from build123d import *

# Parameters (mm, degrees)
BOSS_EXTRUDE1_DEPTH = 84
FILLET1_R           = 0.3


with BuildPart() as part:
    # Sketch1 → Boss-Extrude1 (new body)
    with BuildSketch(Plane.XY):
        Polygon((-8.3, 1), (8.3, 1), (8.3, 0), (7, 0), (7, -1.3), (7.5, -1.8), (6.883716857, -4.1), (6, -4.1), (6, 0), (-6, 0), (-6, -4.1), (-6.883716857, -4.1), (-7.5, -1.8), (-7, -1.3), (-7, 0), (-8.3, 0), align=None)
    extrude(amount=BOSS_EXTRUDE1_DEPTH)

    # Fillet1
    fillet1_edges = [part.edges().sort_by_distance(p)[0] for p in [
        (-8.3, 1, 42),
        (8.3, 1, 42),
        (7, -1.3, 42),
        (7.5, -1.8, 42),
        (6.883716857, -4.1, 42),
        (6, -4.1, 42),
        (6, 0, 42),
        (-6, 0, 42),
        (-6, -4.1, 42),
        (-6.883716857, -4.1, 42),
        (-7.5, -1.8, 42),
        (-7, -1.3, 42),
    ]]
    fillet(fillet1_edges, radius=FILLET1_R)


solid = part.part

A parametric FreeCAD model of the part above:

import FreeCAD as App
import Part
import Sketcher

V = App.Vector
Q = App.Units.Quantity


def edges_at(feature, points):
    """Names of the edges that pass closest to the given points."""
    edges = feature.Shape.Edges
    near = lambda p: min(range(len(edges)), key=lambda i: edges[i].distToShape(Part.Vertex(*p))[0])
    return sorted({f"Edge{near(p) + 1}" for p in points})

doc = App.newDocument("Part")
params = doc.addObject("Spreadsheet::Sheet", "Params")
for row, (alias, value) in enumerate([
    ("sketch1_width", "12 mm"),
    ("sketch1_height", "1 mm"),
    ("sketch1_width2", "16.6 mm"),
    ("sketch1_width3", "1.3 mm"),
    ("sketch1_height2", "4.1 mm"),
    ("pad1_length", "84 mm"),
    ("fillet_radius", "0.3 mm"),
], start=1):
    params.set(f"A{row}", alias)
    params.set(f"B{row}", "=" + value)
    params.setAlias(f"B{row}", alias)

body = doc.addObject("PartDesign::Body", "Body")

# Sketch on XY plane
sketch1 = doc.addObject("Sketcher::SketchObject", "Sketch")
body.addObject(sketch1)
sketch1.AttachmentSupport = (doc.XY_Plane, [""])
sketch1.MapMode = "FlatFace"
sketch1.addGeometry(Part.LineSegment(V(8.3, 1, 0), V(-8.3, 1, 0)), False)
sketch1.addGeometry(Part.LineSegment(V(-8.3, 1, 0), V(-8.3, 0, 0)), False)
sketch1.addGeometry(Part.LineSegment(V(-8.3, 0, 0), V(-7, 0, 0)), False)
sketch1.addGeometry(Part.LineSegment(V(-7, 0, 0), V(-7, -1.3, 0)), False)
sketch1.addGeometry(Part.LineSegment(V(-7, -1.3, 0), V(-7.5, -1.8, 0)), False)
sketch1.addGeometry(Part.LineSegment(V(-7.5, -1.8, 0), V(-6.9, -4.1, 0)), False)
sketch1.addGeometry(Part.LineSegment(V(-6.9, -4.1, 0), V(-6, -4.1, 0)), False)
sketch1.addGeometry(Part.LineSegment(V(-6, -4.1, 0), V(-6, 0, 0)), False)
sketch1.addGeometry(Part.LineSegment(V(-6, 0, 0), V(6, 0, 0)), False)
sketch1.addGeometry(Part.LineSegment(V(6, 0, 0), V(6, -4.1, 0)), False)
sketch1.addGeometry(Part.LineSegment(V(6, -4.1, 0), V(6.9, -4.1, 0)), False)
sketch1.addGeometry(Part.LineSegment(V(6.9, -4.1, 0), V(7.5, -1.8, 0)), False)
sketch1.addGeometry(Part.LineSegment(V(7.5, -1.8, 0), V(7, -1.3, 0)), False)
sketch1.addGeometry(Part.LineSegment(V(7, -1.3, 0), V(7, 0, 0)), False)
sketch1.addGeometry(Part.LineSegment(V(7, 0, 0), V(8.3, 0, 0)), False)
sketch1.addGeometry(Part.LineSegment(V(8.3, 0, 0), V(8.3, 1, 0)), False)
sketch1.addConstraint(Sketcher.Constraint("Coincident", 0, 2, 1, 1))
sketch1.addConstraint(Sketcher.Constraint("Coincident", 1, 2, 2, 1))
sketch1.addConstraint(Sketcher.Constraint("Coincident", 2, 2, 3, 1))
sketch1.addConstraint(Sketcher.Constraint("Coincident", 3, 2, 4, 1))
sketch1.addConstraint(Sketcher.Constraint("Coincident", 4, 2, 5, 1))
sketch1.addConstraint(Sketcher.Constraint("Coincident", 5, 2, 6, 1))
sketch1.addConstraint(Sketcher.Constraint("Coincident", 6, 2, 7, 1))
sketch1.addConstraint(Sketcher.Constraint("Coincident", 7, 2, 8, 1))
sketch1.addConstraint(Sketcher.Constraint("Coincident", 8, 2, 9, 1))
sketch1.addConstraint(Sketcher.Constraint("Coincident", 9, 2, 10, 1))
sketch1.addConstraint(Sketcher.Constraint("Coincident", 10, 2, 11, 1))
sketch1.addConstraint(Sketcher.Constraint("Coincident", 11, 2, 12, 1))
sketch1.addConstraint(Sketcher.Constraint("Coincident", 12, 2, 13, 1))
sketch1.addConstraint(Sketcher.Constraint("Coincident", 13, 2, 14, 1))
sketch1.addConstraint(Sketcher.Constraint("Coincident", 14, 2, 15, 1))
sketch1.addConstraint(Sketcher.Constraint("Coincident", 15, 2, 0, 1))
sketch1.addConstraint(Sketcher.Constraint("Horizontal", 0))
sketch1.addConstraint(Sketcher.Constraint("Vertical", 1))
sketch1.addConstraint(Sketcher.Constraint("Horizontal", 2))
sketch1.addConstraint(Sketcher.Constraint("Vertical", 3))
sketch1.addConstraint(Sketcher.Constraint("Horizontal", 6))
sketch1.addConstraint(Sketcher.Constraint("Vertical", 7))
sketch1.addConstraint(Sketcher.Constraint("Horizontal", 8))
sketch1.addConstraint(Sketcher.Constraint("Vertical", 9))
sketch1.addConstraint(Sketcher.Constraint("Horizontal", 10))
sketch1.addConstraint(Sketcher.Constraint("Vertical", 13))
sketch1.addConstraint(Sketcher.Constraint("Horizontal", 14))
sketch1.addConstraint(Sketcher.Constraint("Vertical", 15))
sketch1.addConstraint(Sketcher.Constraint("Symmetric", 7, 2, 8, 2, -1, 1))
sketch1.addConstraint(Sketcher.Constraint("Symmetric", 2, 2, 13, 2, -1, 1))
sketch1.addConstraint(Sketcher.Constraint("Symmetric", 5, 2, 10, 2, -2))
sketch1.addConstraint(Sketcher.Constraint("Symmetric", 4, 2, 11, 2, -2))
sketch1.addConstraint(Sketcher.Constraint("Symmetric", 1, 2, 14, 2, -2))
sketch1.addConstraint(Sketcher.Constraint("Perpendicular", 4, 12))
sketch1.addConstraint(Sketcher.Constraint("Horizontal", 3, 2, 12, 2))
sketch1.addConstraint(Sketcher.Constraint("Equal", 14, 3))
sketch1.addConstraint(Sketcher.Constraint("DistanceX", 8, 1, 8, 2, 12.0))
sketch1.addConstraint(Sketcher.Constraint("DistanceY", 1, 2, 1, 1, 1.0))
sketch1.addConstraint(Sketcher.Constraint("Angle", 5, Q("-75 deg")))
sketch1.addConstraint(Sketcher.Constraint("DistanceX", 0, 2, 0, 1, 16.6))
sketch1.addConstraint(Sketcher.Constraint("DistanceX", 2, 1, 2, 2, 1.3))
sketch1.addConstraint(Sketcher.Constraint("DistanceY", 7, 1, 7, 2, 4.1))
sketch1.addConstraint(Sketcher.Constraint("DistanceX", 4, 2, -1, 1, 7.5))
sketch1.setExpression("Constraints[36]", "Params.sketch1_width")
sketch1.setExpression("Constraints[37]", "Params.sketch1_height")
sketch1.setExpression("Constraints[39]", "Params.sketch1_width2")
sketch1.setExpression("Constraints[40]", "Params.sketch1_width3")
sketch1.setExpression("Constraints[41]", "Params.sketch1_height2")
pad1 = doc.addObject("PartDesign::Pad", "Pad")
body.addObject(pad1)
pad1.Profile = sketch1
pad1.setExpression("Length", "Params.pad1_length")
doc.recompute()

fillet = doc.addObject("PartDesign::Fillet", "Fillet")
body.addObject(fillet)
fillet.Base = (pad1, edges_at(pad1, [
    (-8.3, 1, 42),
    (8.3, 1, 42),
    (7, -1.3, 42),
    (7.5, -1.8, 42),
    (6.884, -4.1, 42),
    (6, -4.1, 42),
    (6, 0, 42),
    (-6, 0, 42),
    (-6, -4.1, 42),
    (-6.884, -4.1, 42),
    (-7.5, -1.8, 42),
    (-7, -1.3, 42),
]))
fillet.setExpression("Radius", "Params.fillet_radius")

doc.recompute()
